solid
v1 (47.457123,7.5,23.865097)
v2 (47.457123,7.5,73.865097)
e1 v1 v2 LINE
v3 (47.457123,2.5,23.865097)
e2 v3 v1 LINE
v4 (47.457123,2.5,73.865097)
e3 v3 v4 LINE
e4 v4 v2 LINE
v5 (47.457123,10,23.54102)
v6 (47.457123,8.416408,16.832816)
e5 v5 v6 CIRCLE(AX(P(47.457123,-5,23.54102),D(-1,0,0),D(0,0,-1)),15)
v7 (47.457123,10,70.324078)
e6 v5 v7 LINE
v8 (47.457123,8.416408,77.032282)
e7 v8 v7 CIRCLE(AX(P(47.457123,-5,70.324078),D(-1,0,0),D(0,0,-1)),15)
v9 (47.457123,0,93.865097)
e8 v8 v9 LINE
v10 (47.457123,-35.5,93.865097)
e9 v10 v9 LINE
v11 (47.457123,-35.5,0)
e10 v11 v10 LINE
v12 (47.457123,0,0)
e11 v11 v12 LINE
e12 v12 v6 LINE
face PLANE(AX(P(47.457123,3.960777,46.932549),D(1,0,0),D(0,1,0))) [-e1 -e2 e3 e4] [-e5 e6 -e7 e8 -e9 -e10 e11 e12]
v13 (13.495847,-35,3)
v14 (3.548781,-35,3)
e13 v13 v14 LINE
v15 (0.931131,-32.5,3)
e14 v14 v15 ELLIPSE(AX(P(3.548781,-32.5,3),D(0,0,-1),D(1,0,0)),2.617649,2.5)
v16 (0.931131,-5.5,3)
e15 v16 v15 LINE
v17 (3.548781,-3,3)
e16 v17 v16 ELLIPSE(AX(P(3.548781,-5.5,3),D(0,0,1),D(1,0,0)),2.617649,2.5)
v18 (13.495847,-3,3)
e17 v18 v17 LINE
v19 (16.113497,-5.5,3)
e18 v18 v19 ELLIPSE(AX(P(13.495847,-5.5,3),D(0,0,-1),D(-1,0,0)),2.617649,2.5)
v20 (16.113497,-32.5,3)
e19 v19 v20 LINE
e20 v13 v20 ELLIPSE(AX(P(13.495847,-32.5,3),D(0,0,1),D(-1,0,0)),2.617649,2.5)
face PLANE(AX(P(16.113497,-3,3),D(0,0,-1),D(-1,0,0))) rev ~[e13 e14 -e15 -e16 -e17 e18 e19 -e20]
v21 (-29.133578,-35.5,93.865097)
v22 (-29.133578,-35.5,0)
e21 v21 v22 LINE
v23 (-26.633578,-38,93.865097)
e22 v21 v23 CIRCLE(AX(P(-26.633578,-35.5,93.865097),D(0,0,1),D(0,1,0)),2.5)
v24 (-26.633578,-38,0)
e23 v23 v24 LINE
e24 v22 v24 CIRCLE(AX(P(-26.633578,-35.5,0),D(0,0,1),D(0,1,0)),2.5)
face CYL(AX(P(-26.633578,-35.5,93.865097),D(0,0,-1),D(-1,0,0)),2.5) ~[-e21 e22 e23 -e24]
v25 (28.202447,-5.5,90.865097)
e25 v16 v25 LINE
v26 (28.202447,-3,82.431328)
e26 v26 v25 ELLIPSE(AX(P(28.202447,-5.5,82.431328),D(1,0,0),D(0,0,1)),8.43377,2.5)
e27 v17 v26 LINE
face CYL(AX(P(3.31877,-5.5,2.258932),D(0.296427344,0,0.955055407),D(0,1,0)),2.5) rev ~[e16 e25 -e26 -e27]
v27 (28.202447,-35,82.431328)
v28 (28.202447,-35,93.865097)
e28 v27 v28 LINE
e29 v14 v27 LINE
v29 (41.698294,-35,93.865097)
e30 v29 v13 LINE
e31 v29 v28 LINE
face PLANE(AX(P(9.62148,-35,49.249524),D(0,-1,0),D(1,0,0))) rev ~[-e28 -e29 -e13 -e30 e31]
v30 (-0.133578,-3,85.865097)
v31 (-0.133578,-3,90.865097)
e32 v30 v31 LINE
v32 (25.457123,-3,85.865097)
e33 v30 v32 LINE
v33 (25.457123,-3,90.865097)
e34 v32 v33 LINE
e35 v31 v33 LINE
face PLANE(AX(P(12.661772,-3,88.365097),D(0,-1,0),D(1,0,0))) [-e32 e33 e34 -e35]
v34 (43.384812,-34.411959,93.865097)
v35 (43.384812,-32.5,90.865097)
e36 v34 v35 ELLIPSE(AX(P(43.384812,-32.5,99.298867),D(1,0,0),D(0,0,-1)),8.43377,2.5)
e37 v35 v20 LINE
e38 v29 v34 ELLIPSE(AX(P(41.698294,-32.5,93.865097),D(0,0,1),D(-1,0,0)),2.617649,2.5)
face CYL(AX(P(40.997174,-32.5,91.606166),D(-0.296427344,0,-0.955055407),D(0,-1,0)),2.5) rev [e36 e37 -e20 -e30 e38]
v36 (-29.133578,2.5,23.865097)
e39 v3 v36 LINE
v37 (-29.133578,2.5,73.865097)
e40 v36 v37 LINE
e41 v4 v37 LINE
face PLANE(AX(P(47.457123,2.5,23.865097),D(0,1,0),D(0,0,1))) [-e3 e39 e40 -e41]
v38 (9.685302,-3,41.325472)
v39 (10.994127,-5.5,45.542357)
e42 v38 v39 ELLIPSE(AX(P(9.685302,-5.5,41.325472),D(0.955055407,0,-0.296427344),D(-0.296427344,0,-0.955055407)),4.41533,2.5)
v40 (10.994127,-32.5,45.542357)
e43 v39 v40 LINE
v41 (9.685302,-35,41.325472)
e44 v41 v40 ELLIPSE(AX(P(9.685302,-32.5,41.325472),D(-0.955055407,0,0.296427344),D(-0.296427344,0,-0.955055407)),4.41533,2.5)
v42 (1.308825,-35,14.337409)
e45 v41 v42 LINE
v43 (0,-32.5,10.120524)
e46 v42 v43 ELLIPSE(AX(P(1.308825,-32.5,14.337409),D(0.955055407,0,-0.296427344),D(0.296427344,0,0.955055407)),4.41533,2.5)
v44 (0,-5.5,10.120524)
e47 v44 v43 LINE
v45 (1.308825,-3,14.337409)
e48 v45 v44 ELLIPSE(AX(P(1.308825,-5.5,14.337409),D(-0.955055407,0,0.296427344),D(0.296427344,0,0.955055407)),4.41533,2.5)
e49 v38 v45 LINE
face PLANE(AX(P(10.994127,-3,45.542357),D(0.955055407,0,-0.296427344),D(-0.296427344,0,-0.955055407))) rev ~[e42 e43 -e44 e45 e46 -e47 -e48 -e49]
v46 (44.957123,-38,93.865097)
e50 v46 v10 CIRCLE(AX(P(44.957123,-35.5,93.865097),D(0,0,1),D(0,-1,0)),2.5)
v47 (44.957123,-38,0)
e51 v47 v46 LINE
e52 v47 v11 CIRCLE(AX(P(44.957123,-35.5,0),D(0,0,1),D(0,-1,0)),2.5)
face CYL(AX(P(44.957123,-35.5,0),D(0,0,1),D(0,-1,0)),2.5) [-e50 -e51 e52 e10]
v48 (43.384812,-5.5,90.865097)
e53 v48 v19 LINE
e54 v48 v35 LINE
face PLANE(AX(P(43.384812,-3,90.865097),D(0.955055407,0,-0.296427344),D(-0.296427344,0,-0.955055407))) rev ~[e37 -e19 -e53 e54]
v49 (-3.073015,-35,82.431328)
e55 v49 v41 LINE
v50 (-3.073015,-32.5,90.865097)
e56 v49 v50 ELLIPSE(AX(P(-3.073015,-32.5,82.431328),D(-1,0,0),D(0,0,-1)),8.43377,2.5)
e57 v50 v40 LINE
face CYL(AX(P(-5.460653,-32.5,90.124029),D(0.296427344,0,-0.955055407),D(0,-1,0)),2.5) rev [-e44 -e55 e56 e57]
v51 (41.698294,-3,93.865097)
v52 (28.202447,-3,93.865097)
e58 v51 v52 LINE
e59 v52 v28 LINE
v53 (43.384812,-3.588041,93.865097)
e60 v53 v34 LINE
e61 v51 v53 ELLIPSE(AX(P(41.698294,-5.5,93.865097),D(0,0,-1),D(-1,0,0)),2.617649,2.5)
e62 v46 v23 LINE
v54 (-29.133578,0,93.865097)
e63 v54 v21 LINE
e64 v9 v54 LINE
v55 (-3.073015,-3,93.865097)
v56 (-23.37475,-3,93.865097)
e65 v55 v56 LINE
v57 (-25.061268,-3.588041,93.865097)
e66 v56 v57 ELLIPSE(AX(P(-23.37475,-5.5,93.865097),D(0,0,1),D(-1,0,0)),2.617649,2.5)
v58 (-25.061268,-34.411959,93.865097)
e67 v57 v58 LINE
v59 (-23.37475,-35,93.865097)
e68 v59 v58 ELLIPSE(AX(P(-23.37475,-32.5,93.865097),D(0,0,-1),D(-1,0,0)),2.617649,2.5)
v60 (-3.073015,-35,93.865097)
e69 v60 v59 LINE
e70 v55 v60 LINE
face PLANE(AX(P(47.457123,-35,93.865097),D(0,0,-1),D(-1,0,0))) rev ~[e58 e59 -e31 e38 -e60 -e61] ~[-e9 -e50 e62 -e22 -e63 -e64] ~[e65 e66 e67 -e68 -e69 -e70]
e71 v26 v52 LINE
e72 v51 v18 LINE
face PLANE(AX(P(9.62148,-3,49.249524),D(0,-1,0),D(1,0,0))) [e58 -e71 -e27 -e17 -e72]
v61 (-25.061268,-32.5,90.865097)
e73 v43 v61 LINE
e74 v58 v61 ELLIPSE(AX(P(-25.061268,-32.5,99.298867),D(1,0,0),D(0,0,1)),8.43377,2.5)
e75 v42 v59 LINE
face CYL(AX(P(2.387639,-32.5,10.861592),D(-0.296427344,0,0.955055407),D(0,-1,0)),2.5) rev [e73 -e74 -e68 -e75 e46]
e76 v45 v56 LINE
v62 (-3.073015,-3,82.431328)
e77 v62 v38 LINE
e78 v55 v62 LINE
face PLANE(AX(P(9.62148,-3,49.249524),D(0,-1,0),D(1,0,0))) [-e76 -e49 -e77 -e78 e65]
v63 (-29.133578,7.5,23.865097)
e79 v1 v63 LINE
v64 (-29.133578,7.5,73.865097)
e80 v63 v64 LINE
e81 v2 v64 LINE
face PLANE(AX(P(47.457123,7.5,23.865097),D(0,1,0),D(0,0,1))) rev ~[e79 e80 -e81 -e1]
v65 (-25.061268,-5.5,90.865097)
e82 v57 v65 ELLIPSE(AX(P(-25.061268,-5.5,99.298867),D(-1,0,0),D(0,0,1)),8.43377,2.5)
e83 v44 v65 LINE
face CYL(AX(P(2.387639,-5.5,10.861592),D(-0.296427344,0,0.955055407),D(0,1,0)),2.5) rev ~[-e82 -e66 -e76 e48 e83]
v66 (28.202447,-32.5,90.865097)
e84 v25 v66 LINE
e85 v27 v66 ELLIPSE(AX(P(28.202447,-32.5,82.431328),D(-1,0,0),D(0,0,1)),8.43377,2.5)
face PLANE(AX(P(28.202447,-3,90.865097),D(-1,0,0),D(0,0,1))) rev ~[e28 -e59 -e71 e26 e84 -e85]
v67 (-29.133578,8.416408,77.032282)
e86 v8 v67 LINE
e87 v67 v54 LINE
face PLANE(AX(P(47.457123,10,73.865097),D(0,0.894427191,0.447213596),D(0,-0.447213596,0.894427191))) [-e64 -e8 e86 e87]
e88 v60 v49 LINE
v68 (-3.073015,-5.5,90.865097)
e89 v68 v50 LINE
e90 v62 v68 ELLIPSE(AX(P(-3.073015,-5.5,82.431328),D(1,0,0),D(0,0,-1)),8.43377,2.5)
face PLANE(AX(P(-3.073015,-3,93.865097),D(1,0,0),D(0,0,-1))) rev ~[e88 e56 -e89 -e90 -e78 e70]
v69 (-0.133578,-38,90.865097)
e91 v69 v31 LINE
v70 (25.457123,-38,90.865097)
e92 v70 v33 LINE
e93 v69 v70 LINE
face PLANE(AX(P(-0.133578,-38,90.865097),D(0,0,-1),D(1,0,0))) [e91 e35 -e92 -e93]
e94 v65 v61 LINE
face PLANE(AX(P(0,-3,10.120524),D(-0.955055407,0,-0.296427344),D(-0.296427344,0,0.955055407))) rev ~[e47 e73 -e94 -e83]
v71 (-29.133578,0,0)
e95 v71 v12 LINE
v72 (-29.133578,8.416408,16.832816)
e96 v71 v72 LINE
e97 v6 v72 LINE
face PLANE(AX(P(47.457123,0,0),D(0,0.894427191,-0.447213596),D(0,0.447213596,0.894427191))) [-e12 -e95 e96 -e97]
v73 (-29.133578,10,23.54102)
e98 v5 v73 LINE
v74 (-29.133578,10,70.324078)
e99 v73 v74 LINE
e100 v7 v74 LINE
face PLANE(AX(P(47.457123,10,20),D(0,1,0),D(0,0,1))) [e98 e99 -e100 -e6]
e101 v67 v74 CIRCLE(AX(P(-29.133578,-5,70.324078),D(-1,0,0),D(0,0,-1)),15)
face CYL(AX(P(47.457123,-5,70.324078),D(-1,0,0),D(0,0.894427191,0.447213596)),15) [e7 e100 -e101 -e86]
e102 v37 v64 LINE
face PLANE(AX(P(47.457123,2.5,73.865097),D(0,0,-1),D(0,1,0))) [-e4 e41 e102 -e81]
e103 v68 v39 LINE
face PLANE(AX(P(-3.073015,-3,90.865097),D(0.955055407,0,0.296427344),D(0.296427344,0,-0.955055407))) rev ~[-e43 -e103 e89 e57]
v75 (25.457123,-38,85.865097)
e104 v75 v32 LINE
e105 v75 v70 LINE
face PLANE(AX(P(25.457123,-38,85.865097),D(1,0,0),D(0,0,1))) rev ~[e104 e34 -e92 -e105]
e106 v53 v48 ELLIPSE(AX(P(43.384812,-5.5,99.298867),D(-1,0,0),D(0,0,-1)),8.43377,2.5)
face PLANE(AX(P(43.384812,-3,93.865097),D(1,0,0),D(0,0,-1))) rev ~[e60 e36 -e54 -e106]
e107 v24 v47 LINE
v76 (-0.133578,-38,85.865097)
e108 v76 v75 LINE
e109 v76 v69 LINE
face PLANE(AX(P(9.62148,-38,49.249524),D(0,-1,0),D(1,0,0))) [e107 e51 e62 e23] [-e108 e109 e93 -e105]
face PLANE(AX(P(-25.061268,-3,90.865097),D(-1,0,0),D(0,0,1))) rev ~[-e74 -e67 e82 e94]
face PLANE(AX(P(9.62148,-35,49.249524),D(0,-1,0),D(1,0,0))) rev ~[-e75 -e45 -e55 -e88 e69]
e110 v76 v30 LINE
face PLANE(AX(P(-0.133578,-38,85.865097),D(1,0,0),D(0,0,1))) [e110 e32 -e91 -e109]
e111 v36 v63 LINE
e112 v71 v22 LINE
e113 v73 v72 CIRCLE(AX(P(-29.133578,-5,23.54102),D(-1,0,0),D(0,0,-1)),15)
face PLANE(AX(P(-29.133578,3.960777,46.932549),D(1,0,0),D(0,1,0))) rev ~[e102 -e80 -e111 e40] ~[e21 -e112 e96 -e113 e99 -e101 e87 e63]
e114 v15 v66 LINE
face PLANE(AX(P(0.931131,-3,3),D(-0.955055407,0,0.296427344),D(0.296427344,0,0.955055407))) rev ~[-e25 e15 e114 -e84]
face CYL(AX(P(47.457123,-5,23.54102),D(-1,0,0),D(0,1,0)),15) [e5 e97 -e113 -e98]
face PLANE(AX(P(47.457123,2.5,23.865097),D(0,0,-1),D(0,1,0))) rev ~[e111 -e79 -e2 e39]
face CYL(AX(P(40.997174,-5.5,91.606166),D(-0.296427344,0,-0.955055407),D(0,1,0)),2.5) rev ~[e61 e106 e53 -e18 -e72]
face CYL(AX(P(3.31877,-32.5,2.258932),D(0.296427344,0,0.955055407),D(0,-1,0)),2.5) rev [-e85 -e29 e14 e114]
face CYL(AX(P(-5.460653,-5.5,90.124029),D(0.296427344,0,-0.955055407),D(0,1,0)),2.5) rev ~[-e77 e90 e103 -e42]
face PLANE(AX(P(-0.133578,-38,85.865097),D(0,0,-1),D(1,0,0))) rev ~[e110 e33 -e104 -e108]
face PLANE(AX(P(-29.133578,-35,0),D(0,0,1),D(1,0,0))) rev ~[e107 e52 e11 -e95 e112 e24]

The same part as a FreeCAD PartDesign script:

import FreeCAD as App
import Part
import Sketcher

V = App.Vector
Q = App.Units.Quantity


def edges_at(feature, points):
    """Names of the edges that pass closest to the given points."""
    edges = feature.Shape.Edges
    near = lambda p: min(range(len(edges)), key=lambda i: edges[i].distToShape(Part.Vertex(*p))[0])
    return sorted({f"Edge{near(p) + 1}" for p in points})


def add_polygon(sketch, points):
    """Adds a closed chain of lines whose ends are joined by coincident constraints."""
    first, n = sketch.GeometryCount, len(points)
    for a, b in zip(points, points[1:] + points[:1]):
        sketch.addGeometry(Part.LineSegment(App.Vector(*a, 0), App.Vector(*b, 0)), False)
    for i in range(n):
        sketch.addConstraint(Sketcher.Constraint("Coincident", first + i, 2, first + (i + 1) % n, 1))

doc = App.newDocument("Part")
body = doc.addObject("PartDesign::Body", "Body")

# Sketch on XZ plane
sketch1 = body.newObject("Sketcher::SketchObject", "Sketch")
sketch1.AttachmentSupport = (doc.getObject("XZ_Plane"), [""])
sketch1.MapMode = "FlatFace"
add_polygon(sketch1, [(47, 94), (-29, 94), (-29, 0), (47, 0)])  # lines 0-3
sketch1.addConstraint([
    Sketcher.Constraint("Horizontal", 0),
    Sketcher.Constraint("Vertical", 1),
    Sketcher.Constraint("Horizontal", 2),
    Sketcher.Constraint("Vertical", 3),
    Sketcher.Constraint("PointOnObject", 1, 2, -1),
    Sketcher.Constraint("DistanceX", 0, 2, 0, 1, Q("76.590701 mm")),
    Sketcher.Constraint("DistanceY", 1, 2, 1, 1, Q("93.865097 mm")),
    Sketcher.Constraint("DistanceX", 0, 2, -1, 1, Q("29.133578 mm")),
])
pad1 = body.newObject("PartDesign::Pad", "Pad")
pad1.Profile = sketch1
pad1.Length = 3

# Sketch on XZ plane
sketch2 = body.newObject("Sketcher::SketchObject", "Sketch001")
sketch2.AttachmentSupport = (doc.getObject("XZ_Plane"), [""])
sketch2.MapMode = "FlatFace"
sketch2.AttachmentOffset = App.Placement(V(0, 0, 3), App.Rotation())
add_polygon(sketch2, [(47.5, 93.9), (43.4, 93.9), (43.4, 90.9), (16.1, 3), (0.9, 3), (28.2, 90.9), (28.2, 93.9), (-3.1, 93.9), (-3.1, 90.9), (11, 45.5), (0, 10.1), (-25.1, 90.9), (-25.1, 93.9), (-29.1, 93.9), (-29.1, 0), (47.5, 0)])  # lines 0-15
sketch2.addConstraint([
    Sketcher.Constraint("Horizontal", 0),
    Sketcher.Constraint("Vertical", 1),
    Sketcher.Constraint("Horizontal", 3),
    Sketcher.Constraint("Vertical", 5),
    Sketcher.Constraint("Horizontal", 6),
    Sketcher.Constraint("Vertical", 7),
    Sketcher.Constraint("Vertical", 11),
    Sketcher.Constraint("Horizontal", 12),
    Sketcher.Constraint("Vertical", 13),
    Sketcher.Constraint("Horizontal", 14),
    Sketcher.Constraint("Vertical", 15),
    Sketcher.Constraint("PointOnObject", 9, 2, -2),
    Sketcher.Constraint("PointOnObject", 13, 2, -1),
    Sketcher.Constraint("Parallel", 2, 4),
    Sketcher.Constraint("Parallel", 4, 9),
    Sketcher.Constraint("Parallel", 8, 10),
    Sketcher.Constraint("Horizontal", 1, 2, 4, 2),
    Sketcher.Constraint("Horizontal", 0, 2, 5, 2),
    Sketcher.Constraint("Horizontal", 4, 2, 7, 2),
    Sketcher.Constraint("Horizontal", 7, 2, 10, 2),
    Sketcher.Constraint("Horizontal", 6, 2, 11, 2),
    Sketcher.Constraint("Equal", 0, 12),
    Sketcher.Constraint("DistanceY", 1, 2, 1, 1, Q("3 mm")),
    Sketcher.Constraint("Distance", 2, Q("92 mm")),
    Sketcher.Constraint("DistanceY", -1, 1, 2, 2, Q("3 mm")),
    Sketcher.Constraint("DistanceX", 14, 1, 14, 2, Q("76.590701 mm")),
    Sketcher.Constraint("DistanceX", 0, 2, 0, 1, Q("4.07231 mm")),
    Sketcher.Constraint("DistanceX", 6, 2, 6, 1, Q("31.275462 mm")),
    Sketcher.Constraint("DistanceX", 3, 2, 3, 1, Q("15.182365 mm")),
    Sketcher.Constraint("DistanceY", 13, 2, 13, 1, Q("93.865097 mm")),
    Sketcher.Constraint("DistanceX", -1, 1, 3, 2, Q("0.931131 mm")),
    Sketcher.Constraint("DistanceX", 8, 2, 2, 2, Q("5.11937 mm")),
])
pad2 = body.newObject("PartDesign::Pad", "Pad001")
pad2.Profile = sketch2
pad2.Length = 32

# Sketch on XZ plane
sketch3 = body.newObject("Sketcher::SketchObject", "Sketch002")
sketch3.AttachmentSupport = (doc.getObject("XZ_Plane"), [""])
sketch3.MapMode = "FlatFace"
sketch3.AttachmentOffset = App.Placement(V(0, 0, 35), App.Rotation())
add_polygon(sketch3, [(47, 94), (-29, 94), (-29, 0), (47, 0)])  # lines 0-3
sketch3.addConstraint([
    Sketcher.Constraint("Horizontal", 0),
    Sketcher.Constraint("Vertical", 1),
    Sketcher.Constraint("Horizontal", 2),
    Sketcher.Constraint("Vertical", 3),
    Sketcher.Constraint("PointOnObject", 1, 2, -1),
    Sketcher.Constraint("DistanceX", 0, 2, 0, 1, Q("76.590701 mm")),
    Sketcher.Constraint("DistanceY", 1, 2, 1, 1, Q("93.865097 mm")),
    Sketcher.Constraint("DistanceX", 0, 2, -1, 1, Q("29.133578 mm")),
])
pad3 = body.newObject("PartDesign::Pad", "Pad002")
pad3.Profile = sketch3
pad3.Length = 3

# Sketch on YZ plane
sketch4 = body.newObject("Sketcher::SketchObject", "Sketch003")
sketch4.AttachmentSupport = (doc.getObject("YZ_Plane"), [""])
sketch4.MapMode = "FlatFace"
sketch4.AttachmentOffset = App.Placement(V(0, 0, 47.457123), App.Rotation())
add_polygon(sketch4, [(10, 74), (0, 94), (0, 0), (10, 20)])  # lines 0-3
add_polygon(sketch4, [(8, 24), (2, 24), (2, 74), (8, 74)])  # lines 4-7
sketch4.addConstraint([
    Sketcher.Constraint("Vertical", 1),
    Sketcher.Constraint("Vertical", 3),
    Sketcher.Constraint("Horizontal", 4),
    Sketcher.Constraint("Vertical", 5),
    Sketcher.Constraint("Horizontal", 6),
    Sketcher.Constraint("Vertical", 7),
    Sketcher.Constraint("Coincident", 1, 2, -1, 1),
    Sketcher.Constraint("Horizontal", 3, 2, 5, 2),
    Sketcher.Constraint("Equal", 0, 2),
    Sketcher.Constraint("DistanceX", 4, 2, 4, 1, Q("5 mm")),
    Sketcher.Constraint("DistanceY", 5, 1, 5, 2, Q("50 mm")),
    Sketcher.Constraint("DistanceX", -1, 1, 2, 2, Q("10 mm")),
    Sketcher.Constraint("DistanceY", -1, 1, 2, 2, Q("20 mm")),
    Sketcher.Constraint("DistanceX", -1, 1, 4, 2, Q("2.5 mm")),
    Sketcher.Constraint("DistanceY", 1, 2, 1, 1, Q("93.865097 mm")),
])
pad4 = body.newObject("PartDesign::Pad", "Pad003")
pad4.Profile = sketch4
pad4.Length = 76.590701
pad4.Reversed = True
doc.recompute()

fillet = body.newObject("PartDesign::Fillet", "Fillet")
fillet.Base = (pad4, edges_at(pad4, [(9.162, 10, 73.865), (9.162, 10, 20)]))
fillet.Radius = 15
doc.recompute()

fillet2 = body.newObject("PartDesign::Fillet", "Fillet001")
fillet2.Base = (fillet, edges_at(fillet, [
    (-12.531, -3, 50.493),
    (3.961, -3, 68.204),
    (3.961, -35, 68.204),
    (-12.531, -35, 50.493),
    (29.749, -35, 46.933),
    (29.749, -3, 46.933),
    (14.567, -3, 46.933),
    (14.567, -35, 46.933),
]))
fillet2.Radius = 2.5
doc.recompute()

fillet3 = body.newObject("PartDesign::Fillet", "Fillet002")
fillet3.Base = (fillet2, edges_at(fillet2, [(-29.134, -38, 46.933), (47.457, -38, 46.933)]))
fillet3.Radius = 2.5

# Sketch on XZ plane
sketch5 = body.newObject("Sketcher::SketchObject", "Sketch004")
sketch5.AttachmentSupport = (doc.getObject("XZ_Plane"), [""])
sketch5.MapMode = "FlatFace"
sketch5.AttachmentOffset = App.Placement(V(0, 0, 38), App.Rotation())
add_polygon(sketch5, [(0, 91), (0, 86), (25, 86), (25, 91)])  # lines 0-3
sketch5.addConstraint([
    Sketcher.Constraint("Vertical", 0),
    Sketcher.Constraint("Horizontal", 1),
    Sketcher.Constraint("Vertical", 2),
    Sketcher.Constraint("Horizontal", 3),
    Sketcher.Constraint("DistanceY", 0, 2, 0, 1, Q("5 mm")),
    Sketcher.Constraint("DistanceX", 1, 1, 1, 2, Q("25.590701 mm")),
    Sketcher.Constraint("DistanceX", 0, 2, -1, 1, Q("0.133578 mm")),
    Sketcher.Constraint("DistanceY", -1, 1, 0, 2, Q("85.865097 mm")),
])
pocket1 = body.newObject("PartDesign::Pocket", "Pocket")
pocket1.Profile = sketch5
pocket1.Length = 35

doc.recompute()
